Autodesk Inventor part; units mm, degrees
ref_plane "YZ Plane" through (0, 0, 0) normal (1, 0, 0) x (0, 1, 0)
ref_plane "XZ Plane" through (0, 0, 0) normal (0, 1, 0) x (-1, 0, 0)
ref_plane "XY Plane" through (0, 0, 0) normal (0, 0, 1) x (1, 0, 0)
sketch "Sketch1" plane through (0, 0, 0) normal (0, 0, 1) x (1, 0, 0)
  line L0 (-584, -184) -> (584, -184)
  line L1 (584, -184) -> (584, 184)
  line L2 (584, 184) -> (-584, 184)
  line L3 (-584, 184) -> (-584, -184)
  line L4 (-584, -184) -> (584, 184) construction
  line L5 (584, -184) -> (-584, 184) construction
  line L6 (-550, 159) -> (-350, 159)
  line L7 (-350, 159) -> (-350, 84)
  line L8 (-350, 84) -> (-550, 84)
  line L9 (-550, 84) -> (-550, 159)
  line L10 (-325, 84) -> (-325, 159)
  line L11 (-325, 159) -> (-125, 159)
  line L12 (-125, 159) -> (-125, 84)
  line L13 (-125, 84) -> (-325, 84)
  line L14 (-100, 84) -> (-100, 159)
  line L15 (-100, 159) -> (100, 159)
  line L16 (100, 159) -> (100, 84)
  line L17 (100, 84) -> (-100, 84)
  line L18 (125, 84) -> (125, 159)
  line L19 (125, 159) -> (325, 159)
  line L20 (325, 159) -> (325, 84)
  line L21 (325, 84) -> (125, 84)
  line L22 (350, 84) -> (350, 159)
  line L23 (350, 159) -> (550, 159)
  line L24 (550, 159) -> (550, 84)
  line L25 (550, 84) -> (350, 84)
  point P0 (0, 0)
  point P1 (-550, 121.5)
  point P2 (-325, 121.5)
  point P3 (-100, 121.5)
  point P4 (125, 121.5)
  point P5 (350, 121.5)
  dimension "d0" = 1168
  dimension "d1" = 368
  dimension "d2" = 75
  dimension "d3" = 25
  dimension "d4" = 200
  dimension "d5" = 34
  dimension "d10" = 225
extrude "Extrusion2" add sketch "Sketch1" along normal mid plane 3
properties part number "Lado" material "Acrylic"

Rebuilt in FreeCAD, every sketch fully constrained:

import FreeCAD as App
import Part
import Sketcher

V = App.Vector
Q = App.Units.Quantity


def add_polygon(sketch, points):
    """Adds a closed chain of lines whose ends are joined by coincident constraints."""
    first, n = sketch.GeometryCount, len(points)
    for a, b in zip(points, points[1:] + points[:1]):
        sketch.addGeometry(Part.LineSegment(App.Vector(*a, 0), App.Vector(*b, 0)), False)
    for i in range(n):
        sketch.addConstraint(Sketcher.Constraint("Coincident", first + i, 2, first + (i + 1) % n, 1))

doc = App.newDocument("Part")
params = doc.addObject("Spreadsheet::Sheet", "Params")
for row, (alias, value) in enumerate([
    ("sketch1_width", "1168 mm"),
    ("sketch1_width2", "200 mm"),
    ("sketch1_height", "368 mm"),
    ("sketch1_height2", "75 mm"),
    ("pad1_length", "3 mm"),
], start=1):
    params.set(f"A{row}", alias)
    params.set(f"B{row}", "=" + value)
    params.setAlias(f"B{row}", alias)

body = doc.addObject("PartDesign::Body", "Body")

# Sketch on XY plane
sketch1 = body.newObject("Sketcher::SketchObject", "Sketch")
sketch1.AttachmentSupport = (doc.getObject("XY_Plane"), [""])
sketch1.MapMode = "FlatFace"
add_polygon(sketch1, [(-584, 184), (-584, -184), (584, -184), (584, 184)])  # lines 0-3
add_polygon(sketch1, [(-550, 84), (-550, 159), (-350, 159), (-350, 84)])  # lines 4-7
add_polygon(sketch1, [(-125, 84), (-325, 84), (-325, 159), (-125, 159)])  # lines 8-11
add_polygon(sketch1, [(100, 84), (-100, 84), (-100, 159), (100, 159)])  # lines 12-15
add_polygon(sketch1, [(325, 84), (125, 84), (125, 159), (325, 159)])  # lines 16-19
add_polygon(sketch1, [(550, 84), (350, 84), (350, 159), (550, 159)])  # lines 20-23
sketch1.addConstraint([
    Sketcher.Constraint("Vertical", 0),
    Sketcher.Constraint("Horizontal", 1),
    Sketcher.Constraint("Vertical", 2),
    Sketcher.Constraint("Horizontal", 3),
    Sketcher.Constraint("Vertical", 4),
    Sketcher.Constraint("Horizontal", 5),
    Sketcher.Constraint("Vertical", 6),
    Sketcher.Constraint("Horizontal", 7),
    Sketcher.Constraint("Horizontal", 8),
    Sketcher.Constraint("Vertical", 9),
    Sketcher.Constraint("Horizontal", 10),
    Sketcher.Constraint("Vertical", 11),
    Sketcher.Constraint("Horizontal", 12),
    Sketcher.Constraint("Vertical", 13),
    Sketcher.Constraint("Horizontal", 14),
    Sketcher.Constraint("Vertical", 15),
    Sketcher.Constraint("Horizontal", 16),
    Sketcher.Constraint("Vertical", 17),
    Sketcher.Constraint("Horizontal", 18),
    Sketcher.Constraint("Vertical", 19),
    Sketcher.Constraint("Horizontal", 20),
    Sketcher.Constraint("Vertical", 21),
    Sketcher.Constraint("Horizontal", 22),
    Sketcher.Constraint("Vertical", 23),
    Sketcher.Constraint("Symmetric", 0, 2, 2, 2, -1, 1),
    Sketcher.Constraint("Symmetric", 11, 2, 16, 2, -2),
    Sketcher.Constraint("Symmetric", 9, 2, 18, 2, -2),
    Sketcher.Constraint("Symmetric", 6, 2, 20, 2, -2),
    Sketcher.Constraint("Symmetric", 4, 2, 22, 2, -2),
    Sketcher.Constraint("Horizontal", 7, 2, 8, 2),
    Sketcher.Constraint("Horizontal", 5, 2, 9, 2),
    Sketcher.Constraint("Horizontal", 11, 2, 12, 2),
    Sketcher.Constraint("Horizontal", 10, 2, 13, 2),
    Sketcher.Constraint("Equal", 7, 8),
    Sketcher.Constraint("Equal", 10, 12),
    Sketcher.Constraint("DistanceX", 1, 1, 1, 2, Q("1168 mm")),
    Sketcher.Constraint("DistanceX", 5, 1, 5, 2, Q("200 mm")),
    Sketcher.Constraint("DistanceY", 0, 2, 0, 1, Q("368 mm")),
    Sketcher.Constraint("DistanceY", 4, 1, 4, 2, Q("75 mm")),
    Sketcher.Constraint("DistanceX", 3, 2, 4, 2, Q("34 mm")),
    Sketcher.Constraint("DistanceY", 4, 2, 3, 2, Q("25 mm")),
    Sketcher.Constraint("DistanceX", 6, 2, 8, 2, Q("25 mm")),
    Sketcher.Constraint("DistanceX", 11, 2, 12, 2, Q("25 mm")),
])
sketch1.setExpression("Constraints[59]", "Params.sketch1_width")
sketch1.setExpression("Constraints[60]", "Params.sketch1_width2")
sketch1.setExpression("Constraints[61]", "Params.sketch1_height")
sketch1.setExpression("Constraints[62]", "Params.sketch1_height2")
pad1 = body.newObject("PartDesign::Pad", "Pad")
pad1.Profile = sketch1
pad1.setExpression("Length", "Params.pad1_length")
pad1.Midplane = True

doc.recompute()
